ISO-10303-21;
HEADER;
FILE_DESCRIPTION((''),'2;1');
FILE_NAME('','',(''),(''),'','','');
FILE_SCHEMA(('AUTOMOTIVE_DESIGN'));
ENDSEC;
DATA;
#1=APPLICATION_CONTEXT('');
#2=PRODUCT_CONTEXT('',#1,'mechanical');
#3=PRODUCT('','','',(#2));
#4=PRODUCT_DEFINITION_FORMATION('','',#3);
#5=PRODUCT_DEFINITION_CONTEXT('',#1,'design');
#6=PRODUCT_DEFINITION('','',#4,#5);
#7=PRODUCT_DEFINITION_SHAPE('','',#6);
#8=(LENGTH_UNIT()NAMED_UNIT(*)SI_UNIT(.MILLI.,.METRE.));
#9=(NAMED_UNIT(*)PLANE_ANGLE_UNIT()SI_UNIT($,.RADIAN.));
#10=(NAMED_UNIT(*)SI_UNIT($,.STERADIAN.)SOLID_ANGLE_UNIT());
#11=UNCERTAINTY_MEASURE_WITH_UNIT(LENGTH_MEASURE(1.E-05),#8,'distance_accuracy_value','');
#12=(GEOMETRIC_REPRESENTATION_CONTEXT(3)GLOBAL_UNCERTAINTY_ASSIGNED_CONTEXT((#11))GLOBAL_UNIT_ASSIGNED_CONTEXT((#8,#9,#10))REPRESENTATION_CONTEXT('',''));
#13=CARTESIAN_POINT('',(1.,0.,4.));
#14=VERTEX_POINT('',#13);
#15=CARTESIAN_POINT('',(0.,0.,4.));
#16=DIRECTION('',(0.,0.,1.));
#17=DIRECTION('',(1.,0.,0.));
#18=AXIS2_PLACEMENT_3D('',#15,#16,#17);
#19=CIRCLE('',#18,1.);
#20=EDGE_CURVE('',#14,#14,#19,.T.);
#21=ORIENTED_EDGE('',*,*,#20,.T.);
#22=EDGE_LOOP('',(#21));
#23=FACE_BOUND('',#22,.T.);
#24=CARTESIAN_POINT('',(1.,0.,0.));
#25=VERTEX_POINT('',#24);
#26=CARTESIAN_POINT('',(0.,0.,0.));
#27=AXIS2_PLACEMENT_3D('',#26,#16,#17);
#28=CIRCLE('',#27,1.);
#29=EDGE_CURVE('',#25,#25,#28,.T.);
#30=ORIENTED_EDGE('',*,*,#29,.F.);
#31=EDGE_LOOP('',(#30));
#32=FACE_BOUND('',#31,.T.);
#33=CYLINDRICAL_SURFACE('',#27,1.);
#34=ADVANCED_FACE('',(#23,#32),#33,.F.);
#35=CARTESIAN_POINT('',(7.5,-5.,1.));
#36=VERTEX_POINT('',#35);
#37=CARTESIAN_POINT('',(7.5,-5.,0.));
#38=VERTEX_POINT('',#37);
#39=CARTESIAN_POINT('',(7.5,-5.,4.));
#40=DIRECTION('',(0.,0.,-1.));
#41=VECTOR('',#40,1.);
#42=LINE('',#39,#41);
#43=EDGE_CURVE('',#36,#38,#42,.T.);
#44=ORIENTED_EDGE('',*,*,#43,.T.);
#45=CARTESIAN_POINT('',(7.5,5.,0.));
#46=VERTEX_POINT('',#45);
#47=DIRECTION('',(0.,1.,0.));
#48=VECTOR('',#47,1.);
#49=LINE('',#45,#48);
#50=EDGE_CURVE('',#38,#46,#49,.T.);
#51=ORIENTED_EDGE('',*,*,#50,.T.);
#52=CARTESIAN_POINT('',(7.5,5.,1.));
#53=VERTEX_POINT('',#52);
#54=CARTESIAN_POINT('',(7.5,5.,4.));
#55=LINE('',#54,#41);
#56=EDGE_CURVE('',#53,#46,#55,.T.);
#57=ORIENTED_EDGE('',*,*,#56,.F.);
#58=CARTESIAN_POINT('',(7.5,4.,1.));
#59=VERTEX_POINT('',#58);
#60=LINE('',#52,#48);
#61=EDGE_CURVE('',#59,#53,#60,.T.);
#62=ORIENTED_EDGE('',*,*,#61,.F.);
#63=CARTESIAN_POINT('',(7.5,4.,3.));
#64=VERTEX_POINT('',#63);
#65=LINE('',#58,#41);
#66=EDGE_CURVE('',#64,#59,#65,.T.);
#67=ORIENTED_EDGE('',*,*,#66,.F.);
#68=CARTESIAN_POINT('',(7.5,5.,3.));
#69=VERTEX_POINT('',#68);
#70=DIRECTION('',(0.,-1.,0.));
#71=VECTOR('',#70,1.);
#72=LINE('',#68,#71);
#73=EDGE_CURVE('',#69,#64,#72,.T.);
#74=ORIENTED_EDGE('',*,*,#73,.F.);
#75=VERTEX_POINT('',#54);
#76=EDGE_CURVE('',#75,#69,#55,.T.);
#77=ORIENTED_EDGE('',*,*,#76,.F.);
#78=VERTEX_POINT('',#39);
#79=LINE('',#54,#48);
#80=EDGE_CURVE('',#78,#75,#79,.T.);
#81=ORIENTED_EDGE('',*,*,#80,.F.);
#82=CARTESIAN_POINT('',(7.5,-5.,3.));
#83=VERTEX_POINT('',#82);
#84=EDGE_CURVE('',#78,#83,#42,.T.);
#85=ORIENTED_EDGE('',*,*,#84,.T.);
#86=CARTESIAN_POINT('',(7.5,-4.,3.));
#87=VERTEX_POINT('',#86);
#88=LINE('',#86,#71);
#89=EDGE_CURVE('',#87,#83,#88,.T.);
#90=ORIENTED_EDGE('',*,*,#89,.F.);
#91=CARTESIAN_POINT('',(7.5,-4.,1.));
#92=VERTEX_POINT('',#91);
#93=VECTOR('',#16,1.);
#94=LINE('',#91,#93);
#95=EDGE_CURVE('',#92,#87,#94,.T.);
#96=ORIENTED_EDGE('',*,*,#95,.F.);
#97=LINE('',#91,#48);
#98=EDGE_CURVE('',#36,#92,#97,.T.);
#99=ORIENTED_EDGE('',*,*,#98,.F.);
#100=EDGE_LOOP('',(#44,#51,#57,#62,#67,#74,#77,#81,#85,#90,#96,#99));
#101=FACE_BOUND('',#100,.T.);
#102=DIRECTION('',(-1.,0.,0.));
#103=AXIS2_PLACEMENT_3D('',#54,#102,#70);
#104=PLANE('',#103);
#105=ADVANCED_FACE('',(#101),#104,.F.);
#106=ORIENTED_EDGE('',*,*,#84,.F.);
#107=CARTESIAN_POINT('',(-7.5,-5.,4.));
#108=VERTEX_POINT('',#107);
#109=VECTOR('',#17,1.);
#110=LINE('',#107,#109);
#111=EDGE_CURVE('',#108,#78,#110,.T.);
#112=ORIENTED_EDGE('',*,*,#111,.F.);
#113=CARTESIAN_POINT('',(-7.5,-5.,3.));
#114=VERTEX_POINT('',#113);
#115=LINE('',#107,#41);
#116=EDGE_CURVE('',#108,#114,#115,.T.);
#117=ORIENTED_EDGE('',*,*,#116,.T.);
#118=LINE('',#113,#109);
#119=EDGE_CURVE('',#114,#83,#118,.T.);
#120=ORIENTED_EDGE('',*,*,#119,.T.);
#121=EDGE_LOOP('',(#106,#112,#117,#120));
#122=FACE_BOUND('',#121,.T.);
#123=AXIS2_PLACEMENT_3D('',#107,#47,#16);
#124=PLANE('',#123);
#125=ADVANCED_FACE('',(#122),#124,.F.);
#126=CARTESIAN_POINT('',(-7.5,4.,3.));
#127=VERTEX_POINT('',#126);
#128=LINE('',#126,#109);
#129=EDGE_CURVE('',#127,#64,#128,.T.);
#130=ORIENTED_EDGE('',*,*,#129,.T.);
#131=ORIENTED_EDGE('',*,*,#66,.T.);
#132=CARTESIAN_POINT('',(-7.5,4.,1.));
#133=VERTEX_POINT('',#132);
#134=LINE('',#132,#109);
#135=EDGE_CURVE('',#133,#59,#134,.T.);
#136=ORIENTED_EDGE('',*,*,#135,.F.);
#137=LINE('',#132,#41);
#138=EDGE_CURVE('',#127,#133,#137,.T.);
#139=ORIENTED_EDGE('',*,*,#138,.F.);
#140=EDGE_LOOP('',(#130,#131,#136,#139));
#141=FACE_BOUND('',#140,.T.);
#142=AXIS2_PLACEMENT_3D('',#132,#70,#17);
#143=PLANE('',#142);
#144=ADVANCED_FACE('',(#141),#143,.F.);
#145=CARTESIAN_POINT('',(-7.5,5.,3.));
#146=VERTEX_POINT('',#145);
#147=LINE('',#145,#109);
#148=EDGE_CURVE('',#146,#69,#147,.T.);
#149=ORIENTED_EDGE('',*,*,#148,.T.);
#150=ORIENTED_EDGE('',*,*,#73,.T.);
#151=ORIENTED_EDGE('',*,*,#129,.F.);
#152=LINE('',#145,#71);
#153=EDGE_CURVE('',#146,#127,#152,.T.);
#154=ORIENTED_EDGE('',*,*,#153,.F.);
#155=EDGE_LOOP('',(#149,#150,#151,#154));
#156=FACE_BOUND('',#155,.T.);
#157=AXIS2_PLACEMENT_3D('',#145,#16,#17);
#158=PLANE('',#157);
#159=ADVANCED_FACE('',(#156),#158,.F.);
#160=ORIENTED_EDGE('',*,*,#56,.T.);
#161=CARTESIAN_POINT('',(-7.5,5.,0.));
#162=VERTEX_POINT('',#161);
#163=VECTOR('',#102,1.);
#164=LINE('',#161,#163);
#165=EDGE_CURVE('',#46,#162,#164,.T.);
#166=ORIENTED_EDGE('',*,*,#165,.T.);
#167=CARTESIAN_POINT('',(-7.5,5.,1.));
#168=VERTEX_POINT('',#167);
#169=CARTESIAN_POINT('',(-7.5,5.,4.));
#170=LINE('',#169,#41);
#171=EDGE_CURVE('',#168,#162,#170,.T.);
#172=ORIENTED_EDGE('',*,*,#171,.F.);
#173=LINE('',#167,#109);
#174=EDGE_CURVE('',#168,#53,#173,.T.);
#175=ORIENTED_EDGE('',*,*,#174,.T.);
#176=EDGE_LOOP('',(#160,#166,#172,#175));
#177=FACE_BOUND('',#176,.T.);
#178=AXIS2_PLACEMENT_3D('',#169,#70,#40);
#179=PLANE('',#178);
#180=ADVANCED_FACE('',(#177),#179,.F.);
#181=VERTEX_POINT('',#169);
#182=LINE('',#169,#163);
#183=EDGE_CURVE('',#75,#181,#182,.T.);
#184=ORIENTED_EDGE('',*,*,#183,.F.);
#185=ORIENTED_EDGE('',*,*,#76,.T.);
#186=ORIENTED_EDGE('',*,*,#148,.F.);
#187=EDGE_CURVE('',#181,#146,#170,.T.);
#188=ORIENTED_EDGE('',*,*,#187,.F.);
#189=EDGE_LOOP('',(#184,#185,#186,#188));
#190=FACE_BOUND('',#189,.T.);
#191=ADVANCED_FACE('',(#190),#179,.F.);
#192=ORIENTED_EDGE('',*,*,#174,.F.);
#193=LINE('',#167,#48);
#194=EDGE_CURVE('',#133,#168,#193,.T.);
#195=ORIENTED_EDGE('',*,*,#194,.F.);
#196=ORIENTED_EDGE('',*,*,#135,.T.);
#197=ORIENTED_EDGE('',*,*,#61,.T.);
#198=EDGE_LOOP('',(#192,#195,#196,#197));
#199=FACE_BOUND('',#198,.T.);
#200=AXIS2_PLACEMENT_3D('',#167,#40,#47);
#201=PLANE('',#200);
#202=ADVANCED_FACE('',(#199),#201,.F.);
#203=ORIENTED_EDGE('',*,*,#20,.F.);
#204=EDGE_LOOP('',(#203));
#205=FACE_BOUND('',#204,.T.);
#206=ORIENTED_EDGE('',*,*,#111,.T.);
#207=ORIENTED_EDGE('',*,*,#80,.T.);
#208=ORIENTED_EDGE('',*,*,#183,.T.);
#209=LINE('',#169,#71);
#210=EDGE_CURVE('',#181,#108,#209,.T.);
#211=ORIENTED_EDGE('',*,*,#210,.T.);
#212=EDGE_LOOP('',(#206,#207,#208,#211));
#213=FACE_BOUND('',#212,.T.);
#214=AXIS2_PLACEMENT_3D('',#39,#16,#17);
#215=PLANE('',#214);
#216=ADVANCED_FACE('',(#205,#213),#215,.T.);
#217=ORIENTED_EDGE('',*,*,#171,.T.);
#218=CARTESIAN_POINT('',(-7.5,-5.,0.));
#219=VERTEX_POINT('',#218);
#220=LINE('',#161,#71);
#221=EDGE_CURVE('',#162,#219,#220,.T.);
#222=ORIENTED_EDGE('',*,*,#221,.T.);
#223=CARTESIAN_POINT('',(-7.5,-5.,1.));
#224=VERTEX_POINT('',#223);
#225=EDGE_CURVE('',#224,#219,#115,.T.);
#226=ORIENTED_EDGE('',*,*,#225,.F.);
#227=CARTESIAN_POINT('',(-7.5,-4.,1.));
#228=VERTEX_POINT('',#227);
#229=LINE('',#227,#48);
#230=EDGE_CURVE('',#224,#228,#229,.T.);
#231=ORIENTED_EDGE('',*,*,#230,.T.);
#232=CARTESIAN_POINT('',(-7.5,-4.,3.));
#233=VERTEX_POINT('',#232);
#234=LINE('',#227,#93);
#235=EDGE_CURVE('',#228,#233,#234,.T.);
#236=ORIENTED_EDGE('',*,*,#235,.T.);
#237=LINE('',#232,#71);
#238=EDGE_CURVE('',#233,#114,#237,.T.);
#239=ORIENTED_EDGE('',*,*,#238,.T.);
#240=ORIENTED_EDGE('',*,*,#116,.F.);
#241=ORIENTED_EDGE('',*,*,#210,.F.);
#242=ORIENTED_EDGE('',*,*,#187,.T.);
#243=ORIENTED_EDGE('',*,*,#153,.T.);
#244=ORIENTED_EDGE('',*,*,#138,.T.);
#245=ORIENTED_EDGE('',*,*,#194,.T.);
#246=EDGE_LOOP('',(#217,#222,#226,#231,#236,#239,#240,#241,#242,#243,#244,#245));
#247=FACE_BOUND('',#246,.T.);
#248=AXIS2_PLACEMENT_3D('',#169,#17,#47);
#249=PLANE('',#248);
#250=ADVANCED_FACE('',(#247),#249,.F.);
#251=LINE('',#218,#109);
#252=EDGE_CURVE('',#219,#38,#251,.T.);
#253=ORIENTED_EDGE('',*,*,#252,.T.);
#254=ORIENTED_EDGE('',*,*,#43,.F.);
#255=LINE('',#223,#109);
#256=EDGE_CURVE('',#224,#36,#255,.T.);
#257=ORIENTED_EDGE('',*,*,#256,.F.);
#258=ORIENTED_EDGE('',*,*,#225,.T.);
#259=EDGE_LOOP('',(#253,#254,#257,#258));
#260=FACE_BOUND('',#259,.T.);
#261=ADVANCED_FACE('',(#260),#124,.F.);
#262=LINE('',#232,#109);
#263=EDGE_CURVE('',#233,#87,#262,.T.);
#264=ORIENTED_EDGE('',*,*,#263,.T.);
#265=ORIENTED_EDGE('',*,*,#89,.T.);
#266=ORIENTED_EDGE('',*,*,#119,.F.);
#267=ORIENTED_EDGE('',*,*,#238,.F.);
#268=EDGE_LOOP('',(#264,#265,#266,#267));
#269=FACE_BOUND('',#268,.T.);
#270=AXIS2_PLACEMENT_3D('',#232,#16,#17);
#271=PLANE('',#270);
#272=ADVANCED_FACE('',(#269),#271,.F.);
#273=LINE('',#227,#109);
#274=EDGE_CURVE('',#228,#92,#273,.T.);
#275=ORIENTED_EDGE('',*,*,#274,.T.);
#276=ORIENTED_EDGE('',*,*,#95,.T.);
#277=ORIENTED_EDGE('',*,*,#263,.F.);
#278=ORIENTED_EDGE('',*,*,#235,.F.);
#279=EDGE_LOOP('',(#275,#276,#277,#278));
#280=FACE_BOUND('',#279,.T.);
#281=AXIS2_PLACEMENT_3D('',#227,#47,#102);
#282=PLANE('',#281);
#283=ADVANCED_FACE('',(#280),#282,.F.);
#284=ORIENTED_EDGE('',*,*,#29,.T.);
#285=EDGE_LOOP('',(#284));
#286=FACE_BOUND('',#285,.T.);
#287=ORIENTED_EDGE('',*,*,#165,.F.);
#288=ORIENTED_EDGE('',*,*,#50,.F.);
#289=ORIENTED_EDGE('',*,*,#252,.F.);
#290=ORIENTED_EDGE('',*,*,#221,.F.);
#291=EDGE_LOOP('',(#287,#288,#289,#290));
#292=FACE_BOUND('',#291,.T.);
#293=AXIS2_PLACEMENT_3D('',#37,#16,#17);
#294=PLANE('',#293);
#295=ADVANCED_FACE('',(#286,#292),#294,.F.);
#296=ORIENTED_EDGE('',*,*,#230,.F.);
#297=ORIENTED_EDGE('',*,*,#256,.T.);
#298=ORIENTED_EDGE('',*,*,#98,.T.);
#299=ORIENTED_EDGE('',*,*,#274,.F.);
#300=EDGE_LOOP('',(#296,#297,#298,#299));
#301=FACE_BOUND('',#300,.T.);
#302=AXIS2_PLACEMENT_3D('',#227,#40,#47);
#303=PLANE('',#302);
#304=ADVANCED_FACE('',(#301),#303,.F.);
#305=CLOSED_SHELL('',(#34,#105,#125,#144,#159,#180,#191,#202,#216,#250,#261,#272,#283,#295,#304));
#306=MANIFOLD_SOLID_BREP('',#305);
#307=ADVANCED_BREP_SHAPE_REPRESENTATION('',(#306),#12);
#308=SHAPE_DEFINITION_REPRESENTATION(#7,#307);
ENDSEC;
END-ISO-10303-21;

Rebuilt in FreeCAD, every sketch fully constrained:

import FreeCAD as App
import Part
import Sketcher
from FreeCAD import Vector


def add_polygon(sketch, points):
    """Adds a closed chain of lines whose ends are joined by coincident constraints."""
    first, n = sketch.GeometryCount, len(points)
    for a, b in zip(points, points[1:] + points[:1]):
        sketch.addGeometry(Part.LineSegment(App.Vector(*a, 0), App.Vector(*b, 0)), False)
    for i in range(n):
        sketch.addConstraint(Sketcher.Constraint("Coincident", first + i, 2, first + (i + 1) % n, 1))

doc = App.newDocument("Part")
body = doc.addObject("PartDesign::Body", "Body")

# Sketch on XY plane
sketch1 = doc.addObject("Sketcher::SketchObject", "Sketch")
body.addObject(sketch1)
sketch1.AttachmentSupport = (doc.XY_Plane, [""])
sketch1.MapMode = "FlatFace"
add_polygon(sketch1, [(-7.5, 5), (-7.5, -5), (7.5, -5), (7.5, 5)])  # lines 0-3
sketch1.addConstraint(Sketcher.Constraint("Vertical", 0))
sketch1.addConstraint(Sketcher.Constraint("Horizontal", 1))
sketch1.addConstraint(Sketcher.Constraint("Vertical", 2))
sketch1.addConstraint(Sketcher.Constraint("Horizontal", 3))
sketch1.addConstraint(Sketcher.Constraint("Symmetric", 0, 2, 2, 2, -1, 1))
sketch1.addConstraint(Sketcher.Constraint("DistanceX", 1, 1, 1, 2, 15.0))
sketch1.addConstraint(Sketcher.Constraint("DistanceY", 0, 2, 0, 1, 10.0))
pad1 = doc.addObject("PartDesign::Pad", "Pad")
body.addObject(pad1)
pad1.Profile = sketch1
pad1.Length = 4

# Sketch on YZ plane
sketch2 = doc.addObject("Sketcher::SketchObject", "Sketch001")
body.addObject(sketch2)
sketch2.AttachmentSupport = (doc.YZ_Plane, [""])
sketch2.MapMode = "FlatFace"
sketch2.AttachmentOffset = App.Placement(Vector(0, 0, 7.5), App.Rotation())
add_polygon(sketch2, [(5, 3), (4, 3), (4, 1), (5, 1)])  # lines 0-3
add_polygon(sketch2, [(-4, 3), (-5, 3), (-5, 1), (-4, 1)])  # lines 4-7
sketch2.addConstraint(Sketcher.Constraint("Horizontal", 0))
sketch2.addConstraint(Sketcher.Constraint("Vertical", 1))
sketch2.addConstraint(Sketcher.Constraint("Horizontal", 2))
sketch2.addConstraint(Sketcher.Constraint("Vertical", 3))
sketch2.addConstraint(Sketcher.Constraint("Horizontal", 4))
sketch2.addConstraint(Sketcher.Constraint("Vertical", 5))
sketch2.addConstraint(Sketcher.Constraint("Horizontal", 6))
sketch2.addConstraint(Sketcher.Constraint("Vertical", 7))
sketch2.addConstraint(Sketcher.Constraint("Symmetric", 3, 2, 4, 2, -2))
sketch2.addConstraint(Sketcher.Constraint("Symmetric", 1, 2, 6, 2, -2))
sketch2.addConstraint(Sketcher.Constraint("DistanceX", 0, 2, 0, 1, 1.0))
sketch2.addConstraint(Sketcher.Constraint("DistanceY", 1, 2, 1, 1, 2.0))
sketch2.addConstraint(Sketcher.Constraint("DistanceX", -1, 1, 0, 2, 4.0))
sketch2.addConstraint(Sketcher.Constraint("DistanceY", -1, 1, 0, 2, 3.0))
pocket1 = doc.addObject("PartDesign::Pocket", "Pocket")
body.addObject(pocket1)
pocket1.Profile = sketch2
pocket1.Type = "ThroughAll"

# Sketch on XY plane
sketch3 = doc.addObject("Sketcher::SketchObject", "Sketch002")
body.addObject(sketch3)
sketch3.AttachmentSupport = (doc.XY_Plane, [""])
sketch3.MapMode = "FlatFace"
sketch3.AttachmentOffset = App.Placement(Vector(0, 0, 4), App.Rotation())
sketch3.addGeometry(Part.Circle(Vector(0, 0, 0), Vector(0, 0, 1), 1), False)
sketch3.addConstraint(Sketcher.Constraint("Coincident", 0, 3, -1, 1))
sketch3.addConstraint(Sketcher.Constraint("Diameter", 0, 2.0))
pocket2 = doc.addObject("PartDesign::Pocket", "Pocket001")
body.addObject(pocket2)
pocket2.Profile = sketch3
pocket2.Type = "ThroughAll"

doc.recompute()
